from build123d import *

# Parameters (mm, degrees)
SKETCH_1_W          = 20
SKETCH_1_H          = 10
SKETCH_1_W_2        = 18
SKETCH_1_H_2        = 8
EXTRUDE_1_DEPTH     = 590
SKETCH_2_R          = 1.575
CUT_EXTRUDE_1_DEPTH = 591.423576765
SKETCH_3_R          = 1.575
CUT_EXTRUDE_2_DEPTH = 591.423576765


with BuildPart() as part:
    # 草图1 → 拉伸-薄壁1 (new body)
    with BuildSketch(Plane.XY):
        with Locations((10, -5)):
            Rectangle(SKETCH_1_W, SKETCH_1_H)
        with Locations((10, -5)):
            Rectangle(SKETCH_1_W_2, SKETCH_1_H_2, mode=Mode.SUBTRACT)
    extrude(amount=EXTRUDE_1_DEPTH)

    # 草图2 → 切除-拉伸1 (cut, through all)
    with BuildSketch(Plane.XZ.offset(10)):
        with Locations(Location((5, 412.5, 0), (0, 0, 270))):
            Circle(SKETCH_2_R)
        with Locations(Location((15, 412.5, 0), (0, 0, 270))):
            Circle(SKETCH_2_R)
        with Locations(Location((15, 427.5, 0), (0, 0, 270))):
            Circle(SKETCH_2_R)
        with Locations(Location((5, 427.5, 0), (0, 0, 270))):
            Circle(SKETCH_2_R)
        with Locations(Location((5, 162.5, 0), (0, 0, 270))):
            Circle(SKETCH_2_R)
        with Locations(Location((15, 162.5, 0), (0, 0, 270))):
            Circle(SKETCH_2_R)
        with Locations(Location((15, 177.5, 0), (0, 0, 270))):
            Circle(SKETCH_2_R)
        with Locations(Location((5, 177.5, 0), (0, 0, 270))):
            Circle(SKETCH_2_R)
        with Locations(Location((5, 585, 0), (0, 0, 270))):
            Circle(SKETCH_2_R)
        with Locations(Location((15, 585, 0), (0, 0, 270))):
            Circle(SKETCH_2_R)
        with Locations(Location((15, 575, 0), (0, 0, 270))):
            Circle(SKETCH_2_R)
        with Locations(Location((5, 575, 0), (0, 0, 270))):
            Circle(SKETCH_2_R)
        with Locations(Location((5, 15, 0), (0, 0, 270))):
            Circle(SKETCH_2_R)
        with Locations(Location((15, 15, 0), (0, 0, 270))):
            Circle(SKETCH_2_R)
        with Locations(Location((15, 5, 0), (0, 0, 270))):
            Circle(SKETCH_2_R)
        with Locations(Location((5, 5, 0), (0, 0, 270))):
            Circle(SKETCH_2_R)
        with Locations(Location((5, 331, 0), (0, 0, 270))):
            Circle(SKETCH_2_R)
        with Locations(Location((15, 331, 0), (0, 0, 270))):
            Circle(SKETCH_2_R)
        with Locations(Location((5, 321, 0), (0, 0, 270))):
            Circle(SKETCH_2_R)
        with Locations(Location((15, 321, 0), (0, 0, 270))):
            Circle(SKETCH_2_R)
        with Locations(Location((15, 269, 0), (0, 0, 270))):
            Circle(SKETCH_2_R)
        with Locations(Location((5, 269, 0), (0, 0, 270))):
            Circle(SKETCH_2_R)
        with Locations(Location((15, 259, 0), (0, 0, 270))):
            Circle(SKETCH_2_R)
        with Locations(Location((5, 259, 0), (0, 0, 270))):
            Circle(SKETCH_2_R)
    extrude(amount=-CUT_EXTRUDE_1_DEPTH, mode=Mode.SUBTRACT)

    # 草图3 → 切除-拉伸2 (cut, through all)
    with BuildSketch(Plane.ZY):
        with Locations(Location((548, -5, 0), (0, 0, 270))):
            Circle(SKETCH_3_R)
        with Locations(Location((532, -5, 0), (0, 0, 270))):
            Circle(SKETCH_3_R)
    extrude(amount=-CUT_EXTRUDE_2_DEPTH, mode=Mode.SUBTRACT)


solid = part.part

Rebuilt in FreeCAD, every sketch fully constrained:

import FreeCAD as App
import Part
import Sketcher

V = App.Vector

doc = App.newDocument("Part")
body = doc.addObject("PartDesign::Body", "Body")

sketch1 = doc.addObject("Sketcher::SketchObject", "Sketch")
body.addObject(sketch1)
sketch1.AttachmentSupport = (doc.XY_Plane, [""])
sketch1.MapMode = "FlatFace"
sketch1.addGeometry(Part.LineSegment(V(0, 0, 0), V(0, -10, 0)), False)
sketch1.addGeometry(Part.LineSegment(V(0, -10, 0), V(20, -10, 0)), False)
sketch1.addGeometry(Part.LineSegment(V(20, -10, 0), V(20, 0, 0)), False)
sketch1.addGeometry(Part.LineSegment(V(20, 0, 0), V(0, 0, 0)), False)
sketch1.addGeometry(Part.LineSegment(V(19, -9, 0), V(1, -9, 0)), False)
sketch1.addGeometry(Part.LineSegment(V(1, -9, 0), V(1, -1, 0)), False)
sketch1.addGeometry(Part.LineSegment(V(1, -1, 0), V(19, -1, 0)), False)
sketch1.addGeometry(Part.LineSegment(V(19, -1, 0), V(19, -9, 0)), False)
sketch1.addConstraint(Sketcher.Constraint("Coincident", 0, 2, 1, 1))
sketch1.addConstraint(Sketcher.Constraint("Coincident", 1, 2, 2, 1))
sketch1.addConstraint(Sketcher.Constraint("Coincident", 2, 2, 3, 1))
sketch1.addConstraint(Sketcher.Constraint("Coincident", 3, 2, 0, 1))
sketch1.addConstraint(Sketcher.Constraint("Coincident", 4, 2, 5, 1))
sketch1.addConstraint(Sketcher.Constraint("Coincident", 5, 2, 6, 1))
sketch1.addConstraint(Sketcher.Constraint("Coincident", 6, 2, 7, 1))
sketch1.addConstraint(Sketcher.Constraint("Coincident", 7, 2, 4, 1))
sketch1.addConstraint(Sketcher.Constraint("Vertical", 0))
sketch1.addConstraint(Sketcher.Constraint("Horizontal", 1))
sketch1.addConstraint(Sketcher.Constraint("Vertical", 2))
sketch1.addConstraint(Sketcher.Constraint("Horizontal", 3))
sketch1.addConstraint(Sketcher.Constraint("Horizontal", 4))
sketch1.addConstraint(Sketcher.Constraint("Vertical", 5))
sketch1.addConstraint(Sketcher.Constraint("Horizontal", 6))
sketch1.addConstraint(Sketcher.Constraint("Vertical", 7))
sketch1.addConstraint(Sketcher.Constraint("Coincident", 3, 2, -1, 1))
sketch1.addConstraint(Sketcher.Constraint("DistanceX", 1, 1, 1, 2, 20.0))
sketch1.addConstraint(Sketcher.Constraint("DistanceX", 4, 2, 4, 1, 18.0))
sketch1.addConstraint(Sketcher.Constraint("DistanceY", 0, 2, 0, 1, 10.0))
sketch1.addConstraint(Sketcher.Constraint("DistanceY", 5, 1, 5, 2, 8.0))
sketch1.addConstraint(Sketcher.Constraint("DistanceX", -1, 1, 4, 2, 1.0))
sketch1.addConstraint(Sketcher.Constraint("DistanceY", 4, 2, -1, 1, 9.0))
pad1 = doc.addObject("PartDesign::Pad", "Pad")
body.addObject(pad1)
pad1.Profile = sketch1
pad1.Length = 590

sketch2 = doc.addObject("Sketcher::SketchObject", "Sketch001")
body.addObject(sketch2)
sketch2.AttachmentSupport = (doc.XZ_Plane, [""])
sketch2.MapMode = "FlatFace"
sketch2.AttachmentOffset = App.Placement(V(0, 0, 10), App.Rotation())
sketch2.addGeometry(Part.Circle(V(5, 412.5, 0), V(0, 0, 1), 1.575), False)
sketch2.addGeometry(Part.Circle(V(15, 412.5, 0), V(0, 0, 1), 1.575), False)
sketch2.addGeometry(Part.Circle(V(15, 427.5, 0), V(0, 0, 1), 1.575), False)
sketch2.addGeometry(Part.Circle(V(5, 427.5, 0), V(0, 0, 1), 1.575), False)
sketch2.addGeometry(Part.Circle(V(5, 162.5, 0), V(0, 0, 1), 1.575), False)
sketch2.addGeometry(Part.Circle(V(15, 162.5, 0), V(0, 0, 1), 1.575), False)
sketch2.addGeometry(Part.Circle(V(15, 177.5, 0), V(0, 0, 1), 1.575), False)
sketch2.addGeometry(Part.Circle(V(5, 177.5, 0), V(0, 0, 1), 1.575), False)
sketch2.addGeometry(Part.Circle(V(5, 585, 0), V(0, 0, 1), 1.575), False)
sketch2.addGeometry(Part.Circle(V(15, 585, 0), V(0, 0, 1), 1.575), False)
sketch2.addGeometry(Part.Circle(V(15, 575, 0), V(0, 0, 1), 1.575), False)
sketch2.addGeometry(Part.Circle(V(5, 575, 0), V(0, 0, 1), 1.575), False)
sketch2.addGeometry(Part.Circle(V(5, 15, 0), V(0, 0, 1), 1.575), False)
sketch2.addGeometry(Part.Circle(V(15, 15, 0), V(0, 0, 1), 1.575), False)
sketch2.addGeometry(Part.Circle(V(15, 5, 0), V(0, 0, 1), 1.575), False)
sketch2.addGeometry(Part.Circle(V(5, 5, 0), V(0, 0, 1), 1.575), False)
sketch2.addGeometry(Part.Circle(V(5, 331, 0), V(0, 0, 1), 1.575), False)
sketch2.addGeometry(Part.Circle(V(15, 331, 0), V(0, 0, 1), 1.575), False)
sketch2.addGeometry(Part.Circle(V(5, 321, 0), V(0, 0, 1), 1.575), False)
sketch2.addGeometry(Part.Circle(V(15, 321, 0), V(0, 0, 1), 1.575), False)
sketch2.addGeometry(Part.Circle(V(15, 269, 0), V(0, 0, 1), 1.575), False)
sketch2.addGeometry(Part.Circle(V(5, 269, 0), V(0, 0, 1), 1.575), False)
sketch2.addGeometry(Part.Circle(V(15, 259, 0), V(0, 0, 1), 1.575), False)
sketch2.addGeometry(Part.Circle(V(5, 259, 0), V(0, 0, 1), 1.575), False)
sketch2.addConstraint(Sketcher.Constraint("Equal", 0, 1))
sketch2.addConstraint(Sketcher.Constraint("Equal", 1, 2))
sketch2.addConstraint(Sketcher.Constraint("Equal", 2, 3))
sketch2.addConstraint(Sketcher.Constraint("Equal", 3, 4))
sketch2.addConstraint(Sketcher.Constraint("Equal", 4, 5))
sketch2.addConstraint(Sketcher.Constraint("Equal", 5, 6))
sketch2.addConstraint(Sketcher.Constraint("Equal", 6, 7))
sketch2.addConstraint(Sketcher.Constraint("Equal", 7, 8))
sketch2.addConstraint(Sketcher.Constraint("Equal", 8, 9))
sketch2.addConstraint(Sketcher.Constraint("Equal", 9, 10))
sketch2.addConstraint(Sketcher.Constraint("Equal", 10, 11))
sketch2.addConstraint(Sketcher.Constraint("Equal", 11, 12))
sketch2.addConstraint(Sketcher.Constraint("Equal", 12, 13))
sketch2.addConstraint(Sketcher.Constraint("Equal", 13, 14))
sketch2.addConstraint(Sketcher.Constraint("Equal", 14, 15))
sketch2.addConstraint(Sketcher.Constraint("Equal", 15, 16))
sketch2.addConstraint(Sketcher.Constraint("Equal", 16, 17))
sketch2.addConstraint(Sketcher.Constraint("Equal", 17, 18))
sketch2.addConstraint(Sketcher.Constraint("Equal", 18, 19))
sketch2.addConstraint(Sketcher.Constraint("Equal", 19, 20))
sketch2.addConstraint(Sketcher.Constraint("Equal", 20, 21))
sketch2.addConstraint(Sketcher.Constraint("Equal", 21, 22))
sketch2.addConstraint(Sketcher.Constraint("Equal", 22, 23))
sketch2.addConstraint(Sketcher.Constraint("Horizontal", 0, 3, 1, 3))
sketch2.addConstraint(Sketcher.Constraint("Horizontal", 2, 3, 3, 3))
sketch2.addConstraint(Sketcher.Constraint("Horizontal", 4, 3, 5, 3))
sketch2.addConstraint(Sketcher.Constraint("Horizontal", 6, 3, 7, 3))
sketch2.addConstraint(Sketcher.Constraint("Horizontal", 8, 3, 9, 3))
sketch2.addConstraint(Sketcher.Constraint("Horizontal", 10, 3, 11, 3))
sketch2.addConstraint(Sketcher.Constraint("Horizontal", 12, 3, 13, 3))
sketch2.addConstraint(Sketcher.Constraint("Horizontal", 14, 3, 15, 3))
sketch2.addConstraint(Sketcher.Constraint("Horizontal", 16, 3, 17, 3))
sketch2.addConstraint(Sketcher.Constraint("Horizontal", 18, 3, 19, 3))
sketch2.addConstraint(Sketcher.Constraint("Horizontal", 20, 3, 21, 3))
sketch2.addConstraint(Sketcher.Constraint("Horizontal", 22, 3, 23, 3))
sketch2.addConstraint(Sketcher.Constraint("Vertical", 1, 3, 2, 3))
sketch2.addConstraint(Sketcher.Constraint("Vertical", 0, 3, 3, 3))
sketch2.addConstraint(Sketcher.Constraint("Vertical", 3, 3, 4, 3))
sketch2.addConstraint(Sketcher.Constraint("Vertical", 2, 3, 5, 3))
sketch2.addConstraint(Sketcher.Constraint("Vertical", 5, 3, 6, 3))
sketch2.addConstraint(Sketcher.Constraint("Vertical", 4, 3, 7, 3))
sketch2.addConstraint(Sketcher.Constraint("Vertical", 7, 3, 8, 3))
sketch2.addConstraint(Sketcher.Constraint("Vertical", 6, 3, 9, 3))
sketch2.addConstraint(Sketcher.Constraint("Vertical", 9, 3, 10, 3))
sketch2.addConstraint(Sketcher.Constraint("Vertical", 8, 3, 11, 3))
sketch2.addConstraint(Sketcher.Constraint("Vertical", 11, 3, 12, 3))
sketch2.addConstraint(Sketcher.Constraint("Vertical", 10, 3, 13, 3))
sketch2.addConstraint(Sketcher.Constraint("Vertical", 13, 3, 14, 3))
sketch2.addConstraint(Sketcher.Constraint("Vertical", 12, 3, 15, 3))
sketch2.addConstraint(Sketcher.Constraint("Vertical", 15, 3, 16, 3))
sketch2.addConstraint(Sketcher.Constraint("Vertical", 14, 3, 17, 3))
sketch2.addConstraint(Sketcher.Constraint("Vertical", 16, 3, 18, 3))
sketch2.addConstraint(Sketcher.Constraint("Vertical", 17, 3, 19, 3))
sketch2.addConstraint(Sketcher.Constraint("Vertical", 19, 3, 20, 3))
sketch2.addConstraint(Sketcher.Constraint("Vertical", 18, 3, 21, 3))
sketch2.addConstraint(Sketcher.Constraint("Vertical", 20, 3, 22, 3))
sketch2.addConstraint(Sketcher.Constraint("Vertical", 21, 3, 23, 3))
sketch2.addConstraint(Sketcher.Constraint("Diameter", 0, 3.15))
sketch2.addConstraint(Sketcher.Constraint("DistanceX", -1, 1, 0, 3, 5.0))
sketch2.addConstraint(Sketcher.Constraint("DistanceX", -1, 1, 1, 3, 15.0))
sketch2.addConstraint(Sketcher.Constraint("DistanceY", -1, 1, 8, 3, 585.0))
sketch2.addConstraint(Sketcher.Constraint("DistanceY", -1, 1, 10, 3, 575.0))
sketch2.addConstraint(Sketcher.Constraint("DistanceY", -1, 1, 12, 3, 15.0))
sketch2.addConstraint(Sketcher.Constraint("DistanceY", -1, 1, 14, 3, 5.0))
sketch2.addConstraint(Sketcher.Constraint("DistanceY", -1, 1, 16, 3, 331.0))
sketch2.addConstraint(Sketcher.Constraint("DistanceY", -1, 1, 18, 3, 321.0))
sketch2.addConstraint(Sketcher.Constraint("DistanceY", -1, 1, 20, 3, 269.0))
sketch2.addConstraint(Sketcher.Constraint("DistanceY", -1, 1, 22, 3, 259.0))
sketch2.addConstraint(Sketcher.Constraint("DistanceY", 1, 3, 2, 3, 15.0))
sketch2.addConstraint(Sketcher.Constraint("DistanceY", 4, 3, 0, 3, 250.0))
sketch2.addConstraint(Sketcher.Constraint("DistanceY", 5, 3, 6, 3, 15.0))
sketch2.addConstraint(Sketcher.Constraint("DistanceY", -1, 1, 0, 3, 412.5))
pocket1 = doc.addObject("PartDesign::Pocket", "Pocket")
body.addObject(pocket1)
pocket1.Profile = sketch2
pocket1.Type = "ThroughAll"

sketch3 = doc.addObject("Sketcher::SketchObject", "Sketch002")
body.addObject(sketch3)
sketch3.AttachmentSupport = (doc.YZ_Plane, [""])
sketch3.MapMode = "FlatFace"
sketch3.addGeometry(Part.Circle(V(-5, 548, 0), V(0, 0, 1), 1.575), False)
sketch3.addGeometry(Part.Circle(V(-5, 532, 0), V(0, 0, 1), 1.575), False)
sketch3.addConstraint(Sketcher.Constraint("Equal", 0, 1))
sketch3.addConstraint(Sketcher.Constraint("Vertical", 0, 3, 1, 3))
sketch3.addConstraint(Sketcher.Constraint("Diameter", 0, 3.15))
sketch3.addConstraint(Sketcher.Constraint("DistanceX", 0, 3, -1, 1, 5.0))
sketch3.addConstraint(Sketcher.Constraint("DistanceY", -1, 1, 0, 3, 548.0))
sketch3.addConstraint(Sketcher.Constraint("DistanceY", -1, 1, 1, 3, 532.0))
pocket2 = doc.addObject("PartDesign::Pocket", "Pocket001")
body.addObject(pocket2)
pocket2.Profile = sketch3
pocket2.Type = "ThroughAll"
pocket2.Reversed = True

doc.recompute()
